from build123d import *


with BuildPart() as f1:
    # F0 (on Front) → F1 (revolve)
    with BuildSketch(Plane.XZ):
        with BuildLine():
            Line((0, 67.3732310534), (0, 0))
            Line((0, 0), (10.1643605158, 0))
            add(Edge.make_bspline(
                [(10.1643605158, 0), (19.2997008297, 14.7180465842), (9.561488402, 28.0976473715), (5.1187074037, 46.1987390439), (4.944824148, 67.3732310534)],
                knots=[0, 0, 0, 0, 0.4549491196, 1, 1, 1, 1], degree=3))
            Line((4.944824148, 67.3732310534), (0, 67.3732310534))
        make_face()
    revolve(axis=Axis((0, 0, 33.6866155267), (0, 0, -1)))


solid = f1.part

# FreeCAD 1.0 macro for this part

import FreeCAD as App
import Part
import Sketcher
from FreeCAD import Vector

doc = App.newDocument("Part")
body = doc.addObject("PartDesign::Body", "Body")

sketch1 = body.newObject("Sketcher::SketchObject", "Sketch")
sketch1.AttachmentSupport = (doc.getObject("XZ_Plane"), [""])
sketch1.MapMode = "FlatFace"
sketch1.addGeometry([
    Part.LineSegment(Vector(0, 67.373231, 0), Vector(0, 0, 0)),
    Part.LineSegment(Vector(0, 0, 0), Vector(10.164361, 0, 0)),
    Part.BSplineCurve([Vector(10.164361, 0, 0), Vector(19.299701, 14.718047, 0), Vector(9.561488, 28.097647, 0), Vector(5.118707, 46.198739, 0), Vector(4.944824, 67.373231, 0)], [4, 1, 4], [0, 0.45494912, 1], False, 3, [1, 1, 1, 1, 1], False),
    Part.LineSegment(Vector(4.944824, 67.373231, 0), Vector(0, 67.373231, 0)),
], False)
sketch1.addConstraint([
    Sketcher.Constraint("Block", 2),
    Sketcher.Constraint("Coincident", 0, 2, 1, 1),
    Sketcher.Constraint("Coincident", 1, 2, 2, 1),
    Sketcher.Constraint("Coincident", 2, 2, 3, 1),
    Sketcher.Constraint("Coincident", 3, 2, 0, 1),
    Sketcher.Constraint("Vertical", 0),
    Sketcher.Constraint("Horizontal", 1),
    Sketcher.Constraint("Horizontal", 3),
    Sketcher.Constraint("PointOnObject", 3, 2, -2),
])
revolution = body.newObject("PartDesign::Revolution", "Revolution")
revolution.Profile = sketch1
revolution.ReferenceAxis = (sketch1, ["V_Axis"])
revolution.Angle = 360

doc.recompute()
